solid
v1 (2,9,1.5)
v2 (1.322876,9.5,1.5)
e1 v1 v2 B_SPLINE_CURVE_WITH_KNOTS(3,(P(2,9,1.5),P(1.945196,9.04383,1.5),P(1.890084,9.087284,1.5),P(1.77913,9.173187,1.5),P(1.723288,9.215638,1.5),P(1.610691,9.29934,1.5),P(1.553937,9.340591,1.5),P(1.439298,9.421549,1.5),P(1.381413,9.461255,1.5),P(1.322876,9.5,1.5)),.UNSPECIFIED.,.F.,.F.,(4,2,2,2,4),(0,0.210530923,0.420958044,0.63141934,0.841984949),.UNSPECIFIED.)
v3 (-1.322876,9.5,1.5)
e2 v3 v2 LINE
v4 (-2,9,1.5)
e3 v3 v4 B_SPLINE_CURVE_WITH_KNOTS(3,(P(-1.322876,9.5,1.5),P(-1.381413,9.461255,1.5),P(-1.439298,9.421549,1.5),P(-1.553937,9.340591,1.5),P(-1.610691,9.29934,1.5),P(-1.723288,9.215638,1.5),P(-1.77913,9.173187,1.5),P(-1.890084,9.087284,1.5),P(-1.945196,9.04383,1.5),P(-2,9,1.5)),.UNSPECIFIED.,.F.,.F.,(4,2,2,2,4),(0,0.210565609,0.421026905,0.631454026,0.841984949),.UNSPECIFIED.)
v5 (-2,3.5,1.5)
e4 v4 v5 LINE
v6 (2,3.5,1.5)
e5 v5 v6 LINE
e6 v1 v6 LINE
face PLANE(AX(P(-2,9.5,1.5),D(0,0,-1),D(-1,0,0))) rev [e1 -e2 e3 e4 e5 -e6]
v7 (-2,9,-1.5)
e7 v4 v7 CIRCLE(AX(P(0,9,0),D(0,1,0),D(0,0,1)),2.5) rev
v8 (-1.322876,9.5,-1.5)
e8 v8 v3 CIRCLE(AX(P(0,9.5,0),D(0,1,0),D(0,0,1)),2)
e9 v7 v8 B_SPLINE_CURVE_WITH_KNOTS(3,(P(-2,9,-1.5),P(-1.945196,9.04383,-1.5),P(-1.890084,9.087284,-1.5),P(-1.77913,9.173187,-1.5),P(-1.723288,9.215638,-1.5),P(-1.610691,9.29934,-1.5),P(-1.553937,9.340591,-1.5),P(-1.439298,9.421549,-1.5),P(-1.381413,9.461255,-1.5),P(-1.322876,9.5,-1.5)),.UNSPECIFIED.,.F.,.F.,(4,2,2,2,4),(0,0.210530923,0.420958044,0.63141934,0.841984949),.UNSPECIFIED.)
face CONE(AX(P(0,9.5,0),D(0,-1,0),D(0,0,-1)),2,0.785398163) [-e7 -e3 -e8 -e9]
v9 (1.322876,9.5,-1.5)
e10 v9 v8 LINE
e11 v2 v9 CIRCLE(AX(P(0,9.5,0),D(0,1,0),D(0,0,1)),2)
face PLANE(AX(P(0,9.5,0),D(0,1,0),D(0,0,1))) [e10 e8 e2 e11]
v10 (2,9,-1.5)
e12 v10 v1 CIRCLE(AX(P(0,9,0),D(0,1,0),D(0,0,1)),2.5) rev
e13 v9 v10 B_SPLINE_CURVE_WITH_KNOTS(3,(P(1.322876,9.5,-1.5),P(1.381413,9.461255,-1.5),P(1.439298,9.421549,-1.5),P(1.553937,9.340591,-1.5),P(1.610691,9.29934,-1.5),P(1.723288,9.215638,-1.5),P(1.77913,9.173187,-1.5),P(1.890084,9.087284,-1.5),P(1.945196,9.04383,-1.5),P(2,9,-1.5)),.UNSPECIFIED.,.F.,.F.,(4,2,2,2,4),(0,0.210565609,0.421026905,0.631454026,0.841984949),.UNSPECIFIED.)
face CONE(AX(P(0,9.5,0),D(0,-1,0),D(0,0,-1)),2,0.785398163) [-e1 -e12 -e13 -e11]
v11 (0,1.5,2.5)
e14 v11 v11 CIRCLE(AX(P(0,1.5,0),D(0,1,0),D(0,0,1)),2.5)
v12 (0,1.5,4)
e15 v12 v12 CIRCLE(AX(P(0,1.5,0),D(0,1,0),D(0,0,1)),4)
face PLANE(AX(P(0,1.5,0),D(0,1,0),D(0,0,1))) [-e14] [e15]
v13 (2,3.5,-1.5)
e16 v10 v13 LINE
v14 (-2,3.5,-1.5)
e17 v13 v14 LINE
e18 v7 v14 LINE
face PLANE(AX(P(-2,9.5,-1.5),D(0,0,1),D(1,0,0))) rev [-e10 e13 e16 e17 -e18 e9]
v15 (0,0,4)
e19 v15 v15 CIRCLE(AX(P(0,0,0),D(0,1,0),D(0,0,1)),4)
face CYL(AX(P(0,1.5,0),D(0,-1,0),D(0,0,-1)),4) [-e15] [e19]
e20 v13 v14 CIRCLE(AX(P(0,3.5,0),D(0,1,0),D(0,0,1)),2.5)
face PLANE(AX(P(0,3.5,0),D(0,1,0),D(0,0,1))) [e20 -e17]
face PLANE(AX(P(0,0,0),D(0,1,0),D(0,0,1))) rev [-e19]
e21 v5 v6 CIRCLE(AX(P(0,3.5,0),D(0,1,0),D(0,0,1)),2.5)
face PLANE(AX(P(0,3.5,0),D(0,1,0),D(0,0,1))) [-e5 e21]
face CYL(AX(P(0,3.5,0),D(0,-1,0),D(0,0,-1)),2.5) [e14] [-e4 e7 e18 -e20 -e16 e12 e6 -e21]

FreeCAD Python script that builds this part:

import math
import FreeCAD as App
import Part
import Sketcher
Q = App.Units.Quantity


def edges_at(feature, points):
    """Names of the edges that pass closest to the given points."""
    edges = feature.Shape.Edges
    near = lambda p: min(range(len(edges)), key=lambda i: edges[i].distToShape(Part.Vertex(*p))[0])
    return sorted({f"Edge{near(p) + 1}" for p in points})

doc = App.newDocument("Part")
body = doc.addObject("PartDesign::Body", "Body")

# Sketch on XZ plane
sketch1 = body.newObject("Sketcher::SketchObject", "Sketch")
sketch1.AttachmentSupport = (doc.getObject("XZ_Plane"), [""])
sketch1.MapMode = "FlatFace"
sketch1.addGeometry(Part.Circle(App.Vector(0, 0, 0), App.Vector(0, 0, 1), 4), False)
sketch1.addConstraint([
    Sketcher.Constraint("Coincident", 0, 3, -1, 1),
    Sketcher.Constraint("Diameter", 0, Q("8 mm")),
])
pad1 = body.newObject("PartDesign::Pad", "Pad")
pad1.Profile = sketch1
pad1.Length = 1.5
pad1.Reversed = True

# Sketch on XZ plane
sketch2 = body.newObject("Sketcher::SketchObject", "Sketch001")
sketch2.AttachmentSupport = (doc.getObject("XZ_Plane"), [""])
sketch2.MapMode = "FlatFace"
sketch2.AttachmentOffset = App.Placement(App.Vector(0, 0, -1.5), App.Rotation())
sketch2.addGeometry(Part.Circle(App.Vector(0, 0, 0), App.Vector(0, 0, 1), 2.5), False)
sketch2.addConstraint([
    Sketcher.Constraint("Coincident", 0, 3, -1, 1),
    Sketcher.Constraint("Diameter", 0, Q("5 mm")),
])
pad2 = body.newObject("PartDesign::Pad", "Pad001")
pad2.Profile = sketch2
pad2.Length = 2
pad2.Reversed = True

# Sketch on XZ plane
sketch3 = body.newObject("Sketcher::SketchObject", "Sketch002")
sketch3.AttachmentSupport = (doc.getObject("XZ_Plane"), [""])
sketch3.MapMode = "FlatFace"
sketch3.AttachmentOffset = App.Placement(App.Vector(0, 0, -3.5), App.Rotation())
sketch3.addGeometry([
    Part.LineSegment(App.Vector(2, -1.5, 0), App.Vector(-2, -1.5, 0)),
    Part.ArcOfCircle(Part.Circle(App.Vector(0, 0, 0), App.Vector(0, 0, 1), 2.5), math.radians(143), math.radians(217)),
    Part.LineSegment(App.Vector(-2, 1.5, 0), App.Vector(2, 1.5, 0)),
    Part.ArcOfCircle(Part.Circle(App.Vector(0, 0, 0), App.Vector(0, 0, 1), 2.5), math.radians(-37), math.radians(37)),
], False)
sketch3.addConstraint([
    Sketcher.Constraint("Coincident", 0, 2, 1, 2),
    Sketcher.Constraint("Coincident", 1, 1, 2, 1),
    Sketcher.Constraint("Coincident", 2, 2, 3, 2),
    Sketcher.Constraint("Coincident", 3, 1, 0, 1),
    Sketcher.Constraint("Horizontal", 0),
    Sketcher.Constraint("Horizontal", 2),
    Sketcher.Constraint("Coincident", 1, 3, -1, 1),
    Sketcher.Constraint("Coincident", 3, 3, -1, 1),
    Sketcher.Constraint("Equal", 1, 3),
    Sketcher.Constraint("Vertical", 0, 2, 1, 1),
    Sketcher.Constraint("Radius", 1, Q("2.5 mm")),
    Sketcher.Constraint("DistanceX", 0, 2, 0, 1, Q("4 mm")),
])
pad3 = body.newObject("PartDesign::Pad", "Pad002")
pad3.Profile = sketch3
pad3.Length = 6
pad3.Reversed = True
doc.recompute()

chamfer = body.newObject("PartDesign::Chamfer", "Chamfer")
chamfer.Base = (pad3, edges_at(pad3, [(-2.5, 9.5, 0), (2.5, 9.5, 0)]))
chamfer.Size = 0.5

doc.recompute()
